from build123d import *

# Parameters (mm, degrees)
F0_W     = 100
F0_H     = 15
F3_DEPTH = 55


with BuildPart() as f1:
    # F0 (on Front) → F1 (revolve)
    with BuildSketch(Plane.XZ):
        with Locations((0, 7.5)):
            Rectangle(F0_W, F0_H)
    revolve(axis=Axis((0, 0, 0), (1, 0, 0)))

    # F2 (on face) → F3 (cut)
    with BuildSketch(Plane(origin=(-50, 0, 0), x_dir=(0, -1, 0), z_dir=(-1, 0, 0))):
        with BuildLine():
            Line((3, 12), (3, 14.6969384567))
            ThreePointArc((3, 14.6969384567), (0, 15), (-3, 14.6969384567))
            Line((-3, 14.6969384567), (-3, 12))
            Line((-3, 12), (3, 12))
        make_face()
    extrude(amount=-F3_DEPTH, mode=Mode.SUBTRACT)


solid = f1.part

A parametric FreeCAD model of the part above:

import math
import FreeCAD as App
import Part
import Sketcher
from FreeCAD import Vector


def add_polygon(sketch, points):
    """Adds a closed chain of lines whose ends are joined by coincident constraints."""
    first, n = sketch.GeometryCount, len(points)
    for a, b in zip(points, points[1:] + points[:1]):
        sketch.addGeometry(Part.LineSegment(App.Vector(*a, 0), App.Vector(*b, 0)), False)
    for i in range(n):
        sketch.addConstraint(Sketcher.Constraint("Coincident", first + i, 2, first + (i + 1) % n, 1))

doc = App.newDocument("Part")
body = doc.addObject("PartDesign::Body", "Body")

# Sketch on XZ plane
sketch1 = body.newObject("Sketcher::SketchObject", "Sketch")
sketch1.AttachmentSupport = (doc.getObject("XZ_Plane"), [""])
sketch1.MapMode = "FlatFace"
add_polygon(sketch1, [(-50, 15), (-50, 0), (50, 0), (50, 15)])  # lines 0-3
sketch1.addConstraint([
    Sketcher.Constraint("Vertical", 0),
    Sketcher.Constraint("Horizontal", 1),
    Sketcher.Constraint("Vertical", 2),
    Sketcher.Constraint("Horizontal", 3),
    Sketcher.Constraint("Symmetric", 0, 2, 1, 2, -1, 1),
    Sketcher.Constraint("DistanceX", 1, 1, 1, 2, 100.0),
    Sketcher.Constraint("DistanceY", 0, 2, 0, 1, 15.0),
])
revolution = body.newObject("PartDesign::Revolution", "Revolution")
revolution.Profile = sketch1
revolution.ReferenceAxis = (sketch1, ["H_Axis"])
revolution.Angle = 360

# Sketch on YZ plane
sketch2 = body.newObject("Sketcher::SketchObject", "Sketch001")
sketch2.AttachmentSupport = (doc.getObject("YZ_Plane"), [""])
sketch2.MapMode = "FlatFace"
sketch2.AttachmentOffset = App.Placement(Vector(0, 0, -50), App.Rotation())
sketch2.addGeometry([
    Part.LineSegment(Vector(-3, 12, 0), Vector(-3, 14.7, 0)),
    Part.ArcOfCircle(Part.Circle(Vector(0, 0, 0), Vector(0, 0, 1), 15), math.radians(78), math.radians(102)),
    Part.LineSegment(Vector(3, 14.7, 0), Vector(3, 12, 0)),
    Part.LineSegment(Vector(3, 12, 0), Vector(-3, 12, 0)),
], False)
sketch2.addConstraint([
    Sketcher.Constraint("Coincident", 0, 2, 1, 2),
    Sketcher.Constraint("Coincident", 1, 1, 2, 1),
    Sketcher.Constraint("Coincident", 2, 2, 3, 1),
    Sketcher.Constraint("Coincident", 3, 2, 0, 1),
    Sketcher.Constraint("Vertical", 0),
    Sketcher.Constraint("Vertical", 2),
    Sketcher.Constraint("Horizontal", 3),
    Sketcher.Constraint("Coincident", 1, 3, -1, 1),
    Sketcher.Constraint("Horizontal", 0, 2, 1, 1),
    Sketcher.Constraint("Radius", 1, 15.0),
    Sketcher.Constraint("DistanceX", 3, 2, 3, 1, 6.0),
    Sketcher.Constraint("DistanceY", -1, 1, 2, 2, 12.0),
])
pocket1 = body.newObject("PartDesign::Pocket", "Pocket")
pocket1.Profile = sketch2
pocket1.Length = 55
pocket1.Reversed = True

doc.recompute()
